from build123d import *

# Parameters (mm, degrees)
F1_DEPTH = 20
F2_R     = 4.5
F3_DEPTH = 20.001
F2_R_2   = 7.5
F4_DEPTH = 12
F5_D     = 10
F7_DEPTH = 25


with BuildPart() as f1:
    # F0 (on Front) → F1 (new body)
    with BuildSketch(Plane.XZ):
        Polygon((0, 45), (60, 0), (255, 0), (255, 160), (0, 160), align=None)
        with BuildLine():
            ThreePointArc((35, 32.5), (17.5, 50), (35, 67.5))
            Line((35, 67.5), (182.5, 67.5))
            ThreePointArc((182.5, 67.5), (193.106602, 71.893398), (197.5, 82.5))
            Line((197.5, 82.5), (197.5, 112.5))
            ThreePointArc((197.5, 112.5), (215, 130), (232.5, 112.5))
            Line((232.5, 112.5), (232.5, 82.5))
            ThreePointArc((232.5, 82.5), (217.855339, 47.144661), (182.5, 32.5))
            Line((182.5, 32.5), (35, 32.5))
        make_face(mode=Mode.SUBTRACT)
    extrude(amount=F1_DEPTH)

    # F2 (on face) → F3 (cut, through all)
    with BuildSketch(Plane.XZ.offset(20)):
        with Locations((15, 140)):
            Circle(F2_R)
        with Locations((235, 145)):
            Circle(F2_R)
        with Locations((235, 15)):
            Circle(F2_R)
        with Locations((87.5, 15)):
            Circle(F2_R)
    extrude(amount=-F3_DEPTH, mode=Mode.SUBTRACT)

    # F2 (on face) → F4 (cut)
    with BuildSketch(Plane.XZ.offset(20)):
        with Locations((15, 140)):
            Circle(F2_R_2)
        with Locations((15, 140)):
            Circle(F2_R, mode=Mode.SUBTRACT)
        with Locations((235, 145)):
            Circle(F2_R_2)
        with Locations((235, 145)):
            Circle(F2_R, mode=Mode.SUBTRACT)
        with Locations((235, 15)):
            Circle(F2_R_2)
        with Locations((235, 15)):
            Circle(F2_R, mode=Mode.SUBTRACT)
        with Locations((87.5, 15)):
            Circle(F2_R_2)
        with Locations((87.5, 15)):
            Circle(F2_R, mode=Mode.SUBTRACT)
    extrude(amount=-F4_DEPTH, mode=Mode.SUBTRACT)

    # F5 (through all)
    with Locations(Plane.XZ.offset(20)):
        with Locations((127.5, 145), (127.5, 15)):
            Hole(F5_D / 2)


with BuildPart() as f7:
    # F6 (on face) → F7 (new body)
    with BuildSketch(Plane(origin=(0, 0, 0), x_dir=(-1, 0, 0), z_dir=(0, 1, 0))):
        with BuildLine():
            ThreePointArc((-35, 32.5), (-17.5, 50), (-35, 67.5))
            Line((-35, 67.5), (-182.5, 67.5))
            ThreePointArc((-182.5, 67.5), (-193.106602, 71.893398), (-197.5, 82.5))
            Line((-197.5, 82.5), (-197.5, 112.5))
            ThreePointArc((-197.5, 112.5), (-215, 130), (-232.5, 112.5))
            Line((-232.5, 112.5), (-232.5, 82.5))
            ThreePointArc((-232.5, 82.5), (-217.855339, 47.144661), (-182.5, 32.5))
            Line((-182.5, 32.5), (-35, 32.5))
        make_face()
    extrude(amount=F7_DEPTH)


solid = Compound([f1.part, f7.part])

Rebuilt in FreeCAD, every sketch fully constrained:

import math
import FreeCAD as App
import Part
import Sketcher
Q = App.Units.Quantity


def add_polygon(sketch, points):
    """Adds a closed chain of lines whose ends are joined by coincident constraints."""
    first, n = sketch.GeometryCount, len(points)
    for a, b in zip(points, points[1:] + points[:1]):
        sketch.addGeometry(Part.LineSegment(App.Vector(*a, 0), App.Vector(*b, 0)), False)
    for i in range(n):
        sketch.addConstraint(Sketcher.Constraint("Coincident", first + i, 2, first + (i + 1) % n, 1))

doc = App.newDocument("Part")
body = doc.addObject("PartDesign::Body", "Body")

# Sketch on XZ plane
sketch1 = body.newObject("Sketcher::SketchObject", "Sketch")
sketch1.AttachmentSupport = (doc.getObject("XZ_Plane"), [""])
sketch1.MapMode = "FlatFace"
add_polygon(sketch1, [(0, 45), (60, 0), (255, 0), (255, 160), (0, 160)])  # lines 0-4
sketch1.addGeometry(Part.LineSegment(App.Vector(182.5, 32.5, 0), App.Vector(35, 32.5, 0)), False)  # 5
sketch1.addGeometry(Part.ArcOfCircle(Part.Circle(App.Vector(35, 50, 0), App.Vector(0, 0, 1), 17.5), math.radians(90), math.radians(270)), False)  # 6
sketch1.addGeometry(Part.LineSegment(App.Vector(35, 67.5, 0), App.Vector(182.5, 67.5, 0)), False)  # 7
sketch1.addGeometry(Part.ArcOfCircle(Part.Circle(App.Vector(182.500001, 82.499999, 0), App.Vector(0, 0, 1), 14.999999), math.radians(-90.000004), math.radians(0.000004)), False)  # 8
sketch1.addGeometry(Part.LineSegment(App.Vector(197.5, 82.5, 0), App.Vector(197.5, 112.5, 0)), False)  # 9
sketch1.addGeometry(Part.ArcOfCircle(Part.Circle(App.Vector(215, 112.5, 0), App.Vector(0, 0, 1), 17.5), math.radians(0), math.radians(180)), False)  # 10
sketch1.addGeometry(Part.LineSegment(App.Vector(232.5, 112.5, 0), App.Vector(232.5, 82.5, 0)), False)  # 11
sketch1.addGeometry(Part.ArcOfCircle(Part.Circle(App.Vector(182.5, 82.5, 0), App.Vector(0, 0, 1), 50), math.radians(-90), math.radians(0)), False)  # 12
sketch1.addConstraint([
    Sketcher.Constraint("Tangent", 5, 2, 6, 2),
    Sketcher.Constraint("Tangent", 6, 1, 7, 1),
    Sketcher.Constraint("Tangent", 7, 2, 8, 1),
    Sketcher.Constraint("Tangent", 8, 2, 9, 1),
    Sketcher.Constraint("Tangent", 9, 2, 10, 2),
    Sketcher.Constraint("Tangent", 10, 1, 11, 1),
    Sketcher.Constraint("Tangent", 11, 2, 12, 2),
    Sketcher.Constraint("Tangent", 12, 1, 5, 1),
    Sketcher.Constraint("Horizontal", 1),
    Sketcher.Constraint("Vertical", 2),
    Sketcher.Constraint("Horizontal", 3),
    Sketcher.Constraint("Vertical", 4),
    Sketcher.Constraint("Horizontal", 5),
    Sketcher.Constraint("Horizontal", 7),
    Sketcher.Constraint("Vertical", 9),
    Sketcher.Constraint("Vertical", 11),
    Sketcher.Constraint("Coincident", 12, 3, 8, 3),
    Sketcher.Constraint("PointOnObject", 0, 2, -1),
    Sketcher.Constraint("PointOnObject", 3, 2, -2),
    Sketcher.Constraint("Radius", 8, Q("14.999999 mm")),
    Sketcher.Constraint("Radius", 12, Q("50 mm")),
    Sketcher.Constraint("DistanceX", 1, 1, 1, 2, Q("195 mm")),
    Sketcher.Constraint("DistanceX", 3, 2, 3, 1, Q("255 mm")),
    Sketcher.Constraint("DistanceY", 2, 1, 2, 2, Q("160 mm")),
    Sketcher.Constraint("DistanceY", 4, 2, 4, 1, Q("115 mm")),
    Sketcher.Constraint("DistanceY", 9, 1, 9, 2, Q("30 mm")),
    Sketcher.Constraint("DistanceX", 5, 2, 5, 1, Q("147.5 mm")),
    Sketcher.Constraint("DistanceX", -1, 1, 6, 3, Q("35 mm")),
    Sketcher.Constraint("DistanceY", -1, 1, 6, 3, Q("50 mm")),
])
pad1 = body.newObject("PartDesign::Pad", "Pad")
pad1.Profile = sketch1
pad1.Length = 20

# Sketch on XZ plane
sketch2 = body.newObject("Sketcher::SketchObject", "Sketch001")
sketch2.AttachmentSupport = (doc.getObject("XZ_Plane"), [""])
sketch2.MapMode = "FlatFace"
sketch2.AttachmentOffset = App.Placement(App.Vector(0, 0, 20), App.Rotation())
sketch2.addGeometry([
    Part.Circle(App.Vector(15, 140, 0), App.Vector(0, 0, 1), 4.5),
    Part.Circle(App.Vector(235, 145, 0), App.Vector(0, 0, 1), 4.5),
    Part.Circle(App.Vector(235, 15, 0), App.Vector(0, 0, 1), 4.5),
    Part.Circle(App.Vector(87.5, 15, 0), App.Vector(0, 0, 1), 4.5),
], False)
sketch2.addConstraint([
    Sketcher.Constraint("Equal", 0, 1),
    Sketcher.Constraint("Equal", 1, 2),
    Sketcher.Constraint("Equal", 2, 3),
    Sketcher.Constraint("Horizontal", 2, 3, 3, 3),
    Sketcher.Constraint("Vertical", 1, 3, 2, 3),
    Sketcher.Constraint("Diameter", 0, Q("9 mm")),
    Sketcher.Constraint("DistanceX", -1, 1, 0, 3, Q("15 mm")),
    Sketcher.Constraint("DistanceY", -1, 1, 0, 3, Q("140 mm")),
    Sketcher.Constraint("DistanceX", -1, 1, 1, 3, Q("235 mm")),
    Sketcher.Constraint("DistanceY", -1, 1, 1, 3, Q("145 mm")),
    Sketcher.Constraint("DistanceY", -1, 1, 2, 3, Q("15 mm")),
    Sketcher.Constraint("DistanceX", -1, 1, 3, 3, Q("87.5 mm")),
])
pocket1 = body.newObject("PartDesign::Pocket", "Pocket")
pocket1.Profile = sketch2
pocket1.Type = "ThroughAll"

# Sketch on XZ plane
sketch3 = body.newObject("Sketcher::SketchObject", "Sketch002")
sketch3.AttachmentSupport = (doc.getObject("XZ_Plane"), [""])
sketch3.MapMode = "FlatFace"
sketch3.AttachmentOffset = App.Placement(App.Vector(0, 0, 20), App.Rotation())
sketch3.addGeometry([
    Part.Circle(App.Vector(15, 140, 0), App.Vector(0, 0, 1), 7.5),  # 0
    Part.Circle(App.Vector(15, 140, 0), App.Vector(0, 0, 1), 4.5),  # 1
    Part.Circle(App.Vector(235, 145, 0), App.Vector(0, 0, 1), 7.5),  # 2
    Part.Circle(App.Vector(235, 145, 0), App.Vector(0, 0, 1), 4.5),  # 3
    Part.Circle(App.Vector(235, 15, 0), App.Vector(0, 0, 1), 7.5),  # 4
    Part.Circle(App.Vector(235, 15, 0), App.Vector(0, 0, 1), 4.5),  # 5
    Part.Circle(App.Vector(87.5, 15, 0), App.Vector(0, 0, 1), 7.5),  # 6
    Part.Circle(App.Vector(87.5, 15, 0), App.Vector(0, 0, 1), 4.5),  # 7
], False)
sketch3.addConstraint([
    Sketcher.Constraint("Coincident", 1, 3, 0, 3),
    Sketcher.Constraint("Coincident", 3, 3, 2, 3),
    Sketcher.Constraint("Coincident", 5, 3, 4, 3),
    Sketcher.Constraint("Coincident", 7, 3, 6, 3),
    Sketcher.Constraint("Equal", 0, 2),
    Sketcher.Constraint("Equal", 1, 3),
    Sketcher.Constraint("Equal", 2, 4),
    Sketcher.Constraint("Equal", 3, 5),
    Sketcher.Constraint("Equal", 4, 6),
    Sketcher.Constraint("Equal", 5, 7),
    Sketcher.Constraint("Horizontal", 5, 3, 6, 3),
    Sketcher.Constraint("Vertical", 3, 3, 4, 3),
    Sketcher.Constraint("Diameter", 0, Q("15 mm")),
    Sketcher.Constraint("Diameter", 1, Q("9 mm")),
    Sketcher.Constraint("DistanceX", -1, 1, 0, 3, Q("15 mm")),
    Sketcher.Constraint("DistanceY", -1, 1, 0, 3, Q("140 mm")),
    Sketcher.Constraint("DistanceX", -1, 1, 2, 3, Q("235 mm")),
    Sketcher.Constraint("DistanceY", -1, 1, 2, 3, Q("145 mm")),
    Sketcher.Constraint("DistanceY", -1, 1, 4, 3, Q("15 mm")),
    Sketcher.Constraint("DistanceX", -1, 1, 6, 3, Q("87.5 mm")),
])
pocket2 = body.newObject("PartDesign::Pocket", "Pocket001")
pocket2.Profile = sketch3
pocket2.Length = 12

# Sketch on XZ plane
sketch4 = body.newObject("Sketcher::SketchObject", "Sketch003")
sketch4.AttachmentSupport = (doc.getObject("XZ_Plane"), [""])
sketch4.MapMode = "FlatFace"
sketch4.AttachmentOffset = App.Placement(App.Vector(0, 0, 20), App.Rotation())
sketch4.addGeometry([
    Part.Circle(App.Vector(127.5, 145, 0), App.Vector(0, 0, 1), 5),
    Part.Circle(App.Vector(127.5, 15, 0), App.Vector(0, 0, 1), 5),
], False)
sketch4.addConstraint([
    Sketcher.Constraint("Equal", 0, 1),
    Sketcher.Constraint("Vertical", 0, 3, 1, 3),
    Sketcher.Constraint("Diameter", 0, Q("10 mm")),
    Sketcher.Constraint("DistanceY", -1, 1, 0, 3, Q("145 mm")),
    Sketcher.Constraint("DistanceY", -1, 1, 1, 3, Q("15 mm")),
    Sketcher.Constraint("DistanceX", -1, 1, 0, 3, Q("127.5 mm")),
])
doc.recompute()
hole = body.newObject("PartDesign::Hole", "Hole")
hole.Profile = sketch4
hole.ThreadType = "None"
hole.Diameter = 10
hole.DepthType = "ThroughAll"
body2 = doc.addObject("PartDesign::Body", "Body001")

# Sketch on XZ plane
sketch5 = body2.newObject("Sketcher::SketchObject", "Sketch004")
sketch5.AttachmentSupport = (doc.getObject("XZ_Plane001"), [""])
sketch5.MapMode = "FlatFace"
sketch5.addGeometry([
    Part.ArcOfCircle(Part.Circle(App.Vector(35, 50, 0), App.Vector(0, 0, 1), 17.5), math.radians(90), math.radians(270)),  # 0
    Part.LineSegment(App.Vector(35, 67.5, 0), App.Vector(182.5, 67.5, 0)),  # 1
    Part.ArcOfCircle(Part.Circle(App.Vector(182.500001, 82.499999, 0), App.Vector(0, 0, 1), 14.999999), math.radians(-90.000004), math.radians(0.000004)),  # 2
    Part.LineSegment(App.Vector(197.5, 82.5, 0), App.Vector(197.5, 112.5, 0)),  # 3
    Part.ArcOfCircle(Part.Circle(App.Vector(215, 112.5, 0), App.Vector(0, 0, 1), 17.5), math.radians(0), math.radians(180)),  # 4
    Part.LineSegment(App.Vector(232.5, 112.5, 0), App.Vector(232.5, 82.5, 0)),  # 5
    Part.ArcOfCircle(Part.Circle(App.Vector(182.5, 82.5, 0), App.Vector(0, 0, 1), 50), math.radians(-90), math.radians(0)),  # 6
    Part.LineSegment(App.Vector(182.5, 32.5, 0), App.Vector(35, 32.5, 0)),  # 7
], False)
sketch5.addConstraint([
    Sketcher.Constraint("Tangent", 0, 1, 1, 1),
    Sketcher.Constraint("Tangent", 1, 2, 2, 1),
    Sketcher.Constraint("Tangent", 2, 2, 3, 1),
    Sketcher.Constraint("Tangent", 3, 2, 4, 2),
    Sketcher.Constraint("Tangent", 4, 1, 5, 1),
    Sketcher.Constraint("Tangent", 5, 2, 6, 2),
    Sketcher.Constraint("Tangent", 6, 1, 7, 1),
    Sketcher.Constraint("Tangent", 7, 2, 0, 2),
    Sketcher.Constraint("Horizontal", 1),
    Sketcher.Constraint("Vertical", 3),
    Sketcher.Constraint("Vertical", 5),
    Sketcher.Constraint("Horizontal", 7),
    Sketcher.Constraint("Coincident", 6, 3, 2, 3),
    Sketcher.Constraint("Radius", 2, Q("14.999999 mm")),
    Sketcher.Constraint("Radius", 6, Q("50 mm")),
    Sketcher.Constraint("DistanceY", 3, 1, 3, 2, Q("30 mm")),
    Sketcher.Constraint("DistanceX", 1, 1, 1, 2, Q("147.5 mm")),
    Sketcher.Constraint("DistanceX", -1, 1, 0, 3, Q("35 mm")),
    Sketcher.Constraint("DistanceY", -1, 1, 0, 3, Q("50 mm")),
])
pad2 = body2.newObject("PartDesign::Pad", "Pad001")
pad2.Profile = sketch5
pad2.Length = 25
pad2.Reversed = True

doc.recompute()
